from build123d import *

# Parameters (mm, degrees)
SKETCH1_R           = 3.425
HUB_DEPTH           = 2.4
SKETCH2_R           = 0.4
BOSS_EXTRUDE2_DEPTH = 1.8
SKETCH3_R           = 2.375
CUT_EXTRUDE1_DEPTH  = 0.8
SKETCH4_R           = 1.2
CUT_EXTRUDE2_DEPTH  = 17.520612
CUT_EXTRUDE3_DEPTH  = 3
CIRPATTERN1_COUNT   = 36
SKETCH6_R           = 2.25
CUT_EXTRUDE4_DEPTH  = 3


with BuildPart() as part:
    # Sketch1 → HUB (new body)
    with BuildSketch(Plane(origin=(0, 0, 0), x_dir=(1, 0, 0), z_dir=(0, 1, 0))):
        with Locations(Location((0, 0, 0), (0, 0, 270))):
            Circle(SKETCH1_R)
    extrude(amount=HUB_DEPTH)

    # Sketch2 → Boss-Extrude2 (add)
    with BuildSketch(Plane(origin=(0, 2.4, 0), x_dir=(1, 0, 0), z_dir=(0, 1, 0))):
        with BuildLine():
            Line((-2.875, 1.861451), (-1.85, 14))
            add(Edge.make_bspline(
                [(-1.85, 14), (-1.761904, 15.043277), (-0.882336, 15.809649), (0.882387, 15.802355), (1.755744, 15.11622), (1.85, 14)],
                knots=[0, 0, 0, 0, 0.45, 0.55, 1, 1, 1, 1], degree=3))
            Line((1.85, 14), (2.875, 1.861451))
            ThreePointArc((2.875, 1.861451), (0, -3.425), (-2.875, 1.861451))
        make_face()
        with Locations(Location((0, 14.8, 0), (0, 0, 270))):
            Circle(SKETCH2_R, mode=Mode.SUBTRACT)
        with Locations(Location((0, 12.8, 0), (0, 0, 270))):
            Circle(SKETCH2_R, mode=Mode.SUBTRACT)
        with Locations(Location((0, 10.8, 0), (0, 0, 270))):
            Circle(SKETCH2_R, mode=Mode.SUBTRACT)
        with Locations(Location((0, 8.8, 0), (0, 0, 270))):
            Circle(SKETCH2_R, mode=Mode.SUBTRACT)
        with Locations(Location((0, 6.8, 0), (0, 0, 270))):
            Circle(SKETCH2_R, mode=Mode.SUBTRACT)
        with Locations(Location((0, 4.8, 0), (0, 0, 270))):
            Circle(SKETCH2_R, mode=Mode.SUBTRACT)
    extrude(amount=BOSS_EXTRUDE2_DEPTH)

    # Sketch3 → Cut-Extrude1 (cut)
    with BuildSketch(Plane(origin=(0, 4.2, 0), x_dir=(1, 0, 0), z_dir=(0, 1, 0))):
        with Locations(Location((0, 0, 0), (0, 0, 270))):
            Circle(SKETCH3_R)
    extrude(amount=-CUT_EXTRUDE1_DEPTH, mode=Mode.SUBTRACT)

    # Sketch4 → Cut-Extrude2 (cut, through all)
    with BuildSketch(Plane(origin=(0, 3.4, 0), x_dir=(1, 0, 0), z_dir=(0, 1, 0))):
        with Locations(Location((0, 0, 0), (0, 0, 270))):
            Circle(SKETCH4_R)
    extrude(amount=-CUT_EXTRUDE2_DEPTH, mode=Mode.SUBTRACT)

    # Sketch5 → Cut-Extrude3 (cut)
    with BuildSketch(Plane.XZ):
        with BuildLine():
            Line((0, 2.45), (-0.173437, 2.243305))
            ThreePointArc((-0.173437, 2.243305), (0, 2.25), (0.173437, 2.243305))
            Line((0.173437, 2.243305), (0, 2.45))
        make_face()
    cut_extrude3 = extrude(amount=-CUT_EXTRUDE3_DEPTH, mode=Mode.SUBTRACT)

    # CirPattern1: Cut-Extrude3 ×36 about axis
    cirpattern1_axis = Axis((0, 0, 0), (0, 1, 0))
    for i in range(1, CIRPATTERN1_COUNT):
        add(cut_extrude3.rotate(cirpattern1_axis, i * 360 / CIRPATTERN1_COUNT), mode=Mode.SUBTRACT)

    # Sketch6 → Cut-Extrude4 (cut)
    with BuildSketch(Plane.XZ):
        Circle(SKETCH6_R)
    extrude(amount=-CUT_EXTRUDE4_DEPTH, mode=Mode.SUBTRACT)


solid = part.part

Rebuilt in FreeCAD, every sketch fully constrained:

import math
import FreeCAD as App
import Part
import Sketcher

V = App.Vector
Q = App.Units.Quantity

doc = App.newDocument("Part")
body = doc.addObject("PartDesign::Body", "Body")

# Sketch on XZ plane
sketch1 = body.newObject("Sketcher::SketchObject", "Sketch")
sketch1.AttachmentSupport = (doc.getObject("XZ_Plane"), [""])
sketch1.MapMode = "FlatFace"
sketch1.addGeometry(Part.Circle(V(0, 0, 0), V(0, 0, 1), 3.4), False)
sketch1.addConstraint(Sketcher.Constraint("Coincident", 0, 3, -1, 1))
sketch1.addConstraint(Sketcher.Constraint("Diameter", 0, Q("6.85 mm")))
pad1 = body.newObject("PartDesign::Pad", "Pad")
pad1.Profile = sketch1
pad1.Length = 2.4
pad1.Reversed = True

# Sketch on XZ plane
sketch2 = body.newObject("Sketcher::SketchObject", "Sketch001")
sketch2.AttachmentSupport = (doc.getObject("XZ_Plane"), [""])
sketch2.MapMode = "FlatFace"
sketch2.AttachmentOffset = App.Placement(V(0, 0, -2.4), App.Rotation())
sketch2.addGeometry(Part.LineSegment(V(-1.85, -14, 0), V(-2.875, -1.861451, 0)), False)
sketch2.addGeometry(Part.ArcOfCircle(Part.Circle(V(0, 0, 0), V(0, 0, 1), 3.425), math.radians(-32.921491), math.radians(212.921491)), False)
sketch2.addGeometry(Part.LineSegment(V(2.875, -1.861451, 0), V(1.85, -14, 0)), False)
sketch2.addGeometry(Part.BSplineCurve([V(-1.85, -14, 0), V(-1.761904, -15.043277, 0), V(-0.882336, -15.809649, 0), V(0.882387, -15.802355, 0), V(1.755744, -15.11622, 0), V(1.85, -14, 0)], [4, 1, 1, 4], [0, 0.45, 0.55, 1], False, 3, [1, 1, 1, 1, 1, 1], False), False)
sketch2.addGeometry(Part.Circle(V(0, -4.8, 0), V(0, 0, 1), 0.4), False)
sketch2.addGeometry(Part.Circle(V(0, -6.8, 0), V(0, 0, 1), 0.4), False)
sketch2.addGeometry(Part.Circle(V(0, -8.8, 0), V(0, 0, 1), 0.4), False)
sketch2.addGeometry(Part.Circle(V(0, -10.8, 0), V(0, 0, 1), 0.4), False)
sketch2.addGeometry(Part.Circle(V(0, -12.8, 0), V(0, 0, 1), 0.4), False)
sketch2.addGeometry(Part.Circle(V(0, -14.8, 0), V(0, 0, 1), 0.4), False)
sketch2.addConstraint(Sketcher.Constraint("Block", 3))
sketch2.addConstraint(Sketcher.Constraint("Coincident", 0, 2, 1, 2))
sketch2.addConstraint(Sketcher.Constraint("Coincident", 1, 1, 2, 1))
sketch2.addConstraint(Sketcher.Constraint("Coincident", 2, 2, 3, 2))
sketch2.addConstraint(Sketcher.Constraint("Coincident", 3, 1, 0, 1))
sketch2.addConstraint(Sketcher.Constraint("Coincident", 1, 3, -1, 1))
sketch2.addConstraint(Sketcher.Constraint("Equal", 4, 5))
sketch2.addConstraint(Sketcher.Constraint("Equal", 5, 6))
sketch2.addConstraint(Sketcher.Constraint("Equal", 6, 7))
sketch2.addConstraint(Sketcher.Constraint("Equal", 7, 8))
sketch2.addConstraint(Sketcher.Constraint("Equal", 8, 9))
sketch2.addConstraint(Sketcher.Constraint("PointOnObject", 4, 3, -2))
sketch2.addConstraint(Sketcher.Constraint("PointOnObject", 5, 3, -2))
sketch2.addConstraint(Sketcher.Constraint("PointOnObject", 6, 3, -2))
sketch2.addConstraint(Sketcher.Constraint("PointOnObject", 7, 3, -2))
sketch2.addConstraint(Sketcher.Constraint("PointOnObject", 8, 3, -2))
sketch2.addConstraint(Sketcher.Constraint("PointOnObject", 9, 3, -2))
sketch2.addConstraint(Sketcher.Constraint("Horizontal", 0, 2, 1, 1))
sketch2.addConstraint(Sketcher.Constraint("Diameter", 4, Q("0.8 mm")))
sketch2.addConstraint(Sketcher.Constraint("Radius", 1, Q("3.425 mm")))
sketch2.addConstraint(Sketcher.Constraint("DistanceY", 5, 3, 4, 3, Q("2 mm")))
sketch2.addConstraint(Sketcher.Constraint("DistanceY", 6, 3, 5, 3, Q("2 mm")))
sketch2.addConstraint(Sketcher.Constraint("DistanceY", 7, 3, 6, 3, Q("2 mm")))
sketch2.addConstraint(Sketcher.Constraint("DistanceY", 8, 3, 7, 3, Q("2 mm")))
sketch2.addConstraint(Sketcher.Constraint("DistanceY", 9, 3, 8, 3, Q("2 mm")))
sketch2.addConstraint(Sketcher.Constraint("DistanceY", 4, 3, -1, 1, Q("4.8 mm")))
sketch2.addConstraint(Sketcher.Constraint("DistanceX", 0, 2, 1, 1, Q("5.75 mm")))
pad2 = body.newObject("PartDesign::Pad", "Pad001")
pad2.Profile = sketch2
pad2.Length = 1.8
pad2.Reversed = True

# Sketch on XZ plane
sketch3 = body.newObject("Sketcher::SketchObject", "Sketch002")
sketch3.AttachmentSupport = (doc.getObject("XZ_Plane"), [""])
sketch3.MapMode = "FlatFace"
sketch3.AttachmentOffset = App.Placement(V(0, 0, -4.2), App.Rotation())
sketch3.addGeometry(Part.Circle(V(0, 0, 0), V(0, 0, 1), 2.4), False)
sketch3.addConstraint(Sketcher.Constraint("Coincident", 0, 3, -1, 1))
sketch3.addConstraint(Sketcher.Constraint("Diameter", 0, Q("4.75 mm")))
pocket1 = body.newObject("PartDesign::Pocket", "Pocket")
pocket1.Profile = sketch3
pocket1.Length = 0.8
pocket1.Reversed = True

# Sketch on XZ plane
sketch4 = body.newObject("Sketcher::SketchObject", "Sketch003")
sketch4.AttachmentSupport = (doc.getObject("XZ_Plane"), [""])
sketch4.MapMode = "FlatFace"
sketch4.AttachmentOffset = App.Placement(V(0, 0, -3.4), App.Rotation())
sketch4.addGeometry(Part.Circle(V(0, 0, 0), V(0, 0, 1), 1.2), False)
sketch4.addConstraint(Sketcher.Constraint("Coincident", 0, 3, -1, 1))
sketch4.addConstraint(Sketcher.Constraint("Diameter", 0, Q("2.4 mm")))
pocket2 = body.newObject("PartDesign::Pocket", "Pocket001")
pocket2.Profile = sketch4
pocket2.Type = "ThroughAll"
pocket2.Reversed = True

# Sketch on XZ plane
sketch5 = body.newObject("Sketcher::SketchObject", "Sketch004")
sketch5.AttachmentSupport = (doc.getObject("XZ_Plane"), [""])
sketch5.MapMode = "FlatFace"
sketch5.addGeometry(Part.LineSegment(V(0, 2.45, 0), V(-0.17, 2.24, 0)), False)
sketch5.addGeometry(Part.ArcOfCircle(Part.Circle(V(0, 0, 0), V(0, 0, 1), 2.25), math.radians(85.58), math.radians(94.42)), False)
sketch5.addGeometry(Part.LineSegment(V(0.17, 2.24, 0), V(0, 2.45, 0)), False)
sketch5.addConstraint(Sketcher.Constraint("Coincident", 0, 2, 1, 2))
sketch5.addConstraint(Sketcher.Constraint("Coincident", 1, 1, 2, 1))
sketch5.addConstraint(Sketcher.Constraint("Coincident", 2, 2, 0, 1))
sketch5.addConstraint(Sketcher.Constraint("Symmetric", 0, 2, 1, 1, -2))
sketch5.addConstraint(Sketcher.Constraint("PointOnObject", 2, 2, -2))
sketch5.addConstraint(Sketcher.Constraint("DistanceY", -1, 1, 2, 2, Q("2.45 mm")))
sketch5.addConstraint(Sketcher.Constraint("Radius", 1, Q("2.249829 mm")))
sketch5.addConstraint(Sketcher.Constraint("Distance", 0, Q("0.269821 mm")))
sketch5.addConstraint(Sketcher.Constraint("DistanceY", -1, 1, 1, 3, Q("0.000171 mm")))
pocket3 = body.newObject("PartDesign::Pocket", "Pocket002")
pocket3.Profile = sketch5
pocket3.Length = 3
doc.recompute()

polarpattern = body.newObject("PartDesign::PolarPattern", "PolarPattern")
polarpattern.Originals = [pocket3]
polarpattern.Axis = (doc.getObject("Y_Axis"), [""])
polarpattern.Angle = 360
polarpattern.Occurrences = 36
body.Tip = polarpattern

# Sketch on XZ plane
sketch6 = body.newObject("Sketcher::SketchObject", "Sketch005")
sketch6.AttachmentSupport = (doc.getObject("XZ_Plane"), [""])
sketch6.MapMode = "FlatFace"
sketch6.addGeometry(Part.Circle(V(0, 0, 0), V(0, 0, 1), 2.2), False)
sketch6.addConstraint(Sketcher.Constraint("Coincident", 0, 3, -1, 1))
sketch6.addConstraint(Sketcher.Constraint("Diameter", 0, Q("4.5 mm")))
pocket4 = body.newObject("PartDesign::Pocket", "Pocket003")
pocket4.Profile = sketch6
pocket4.Length = 3

doc.recompute()
